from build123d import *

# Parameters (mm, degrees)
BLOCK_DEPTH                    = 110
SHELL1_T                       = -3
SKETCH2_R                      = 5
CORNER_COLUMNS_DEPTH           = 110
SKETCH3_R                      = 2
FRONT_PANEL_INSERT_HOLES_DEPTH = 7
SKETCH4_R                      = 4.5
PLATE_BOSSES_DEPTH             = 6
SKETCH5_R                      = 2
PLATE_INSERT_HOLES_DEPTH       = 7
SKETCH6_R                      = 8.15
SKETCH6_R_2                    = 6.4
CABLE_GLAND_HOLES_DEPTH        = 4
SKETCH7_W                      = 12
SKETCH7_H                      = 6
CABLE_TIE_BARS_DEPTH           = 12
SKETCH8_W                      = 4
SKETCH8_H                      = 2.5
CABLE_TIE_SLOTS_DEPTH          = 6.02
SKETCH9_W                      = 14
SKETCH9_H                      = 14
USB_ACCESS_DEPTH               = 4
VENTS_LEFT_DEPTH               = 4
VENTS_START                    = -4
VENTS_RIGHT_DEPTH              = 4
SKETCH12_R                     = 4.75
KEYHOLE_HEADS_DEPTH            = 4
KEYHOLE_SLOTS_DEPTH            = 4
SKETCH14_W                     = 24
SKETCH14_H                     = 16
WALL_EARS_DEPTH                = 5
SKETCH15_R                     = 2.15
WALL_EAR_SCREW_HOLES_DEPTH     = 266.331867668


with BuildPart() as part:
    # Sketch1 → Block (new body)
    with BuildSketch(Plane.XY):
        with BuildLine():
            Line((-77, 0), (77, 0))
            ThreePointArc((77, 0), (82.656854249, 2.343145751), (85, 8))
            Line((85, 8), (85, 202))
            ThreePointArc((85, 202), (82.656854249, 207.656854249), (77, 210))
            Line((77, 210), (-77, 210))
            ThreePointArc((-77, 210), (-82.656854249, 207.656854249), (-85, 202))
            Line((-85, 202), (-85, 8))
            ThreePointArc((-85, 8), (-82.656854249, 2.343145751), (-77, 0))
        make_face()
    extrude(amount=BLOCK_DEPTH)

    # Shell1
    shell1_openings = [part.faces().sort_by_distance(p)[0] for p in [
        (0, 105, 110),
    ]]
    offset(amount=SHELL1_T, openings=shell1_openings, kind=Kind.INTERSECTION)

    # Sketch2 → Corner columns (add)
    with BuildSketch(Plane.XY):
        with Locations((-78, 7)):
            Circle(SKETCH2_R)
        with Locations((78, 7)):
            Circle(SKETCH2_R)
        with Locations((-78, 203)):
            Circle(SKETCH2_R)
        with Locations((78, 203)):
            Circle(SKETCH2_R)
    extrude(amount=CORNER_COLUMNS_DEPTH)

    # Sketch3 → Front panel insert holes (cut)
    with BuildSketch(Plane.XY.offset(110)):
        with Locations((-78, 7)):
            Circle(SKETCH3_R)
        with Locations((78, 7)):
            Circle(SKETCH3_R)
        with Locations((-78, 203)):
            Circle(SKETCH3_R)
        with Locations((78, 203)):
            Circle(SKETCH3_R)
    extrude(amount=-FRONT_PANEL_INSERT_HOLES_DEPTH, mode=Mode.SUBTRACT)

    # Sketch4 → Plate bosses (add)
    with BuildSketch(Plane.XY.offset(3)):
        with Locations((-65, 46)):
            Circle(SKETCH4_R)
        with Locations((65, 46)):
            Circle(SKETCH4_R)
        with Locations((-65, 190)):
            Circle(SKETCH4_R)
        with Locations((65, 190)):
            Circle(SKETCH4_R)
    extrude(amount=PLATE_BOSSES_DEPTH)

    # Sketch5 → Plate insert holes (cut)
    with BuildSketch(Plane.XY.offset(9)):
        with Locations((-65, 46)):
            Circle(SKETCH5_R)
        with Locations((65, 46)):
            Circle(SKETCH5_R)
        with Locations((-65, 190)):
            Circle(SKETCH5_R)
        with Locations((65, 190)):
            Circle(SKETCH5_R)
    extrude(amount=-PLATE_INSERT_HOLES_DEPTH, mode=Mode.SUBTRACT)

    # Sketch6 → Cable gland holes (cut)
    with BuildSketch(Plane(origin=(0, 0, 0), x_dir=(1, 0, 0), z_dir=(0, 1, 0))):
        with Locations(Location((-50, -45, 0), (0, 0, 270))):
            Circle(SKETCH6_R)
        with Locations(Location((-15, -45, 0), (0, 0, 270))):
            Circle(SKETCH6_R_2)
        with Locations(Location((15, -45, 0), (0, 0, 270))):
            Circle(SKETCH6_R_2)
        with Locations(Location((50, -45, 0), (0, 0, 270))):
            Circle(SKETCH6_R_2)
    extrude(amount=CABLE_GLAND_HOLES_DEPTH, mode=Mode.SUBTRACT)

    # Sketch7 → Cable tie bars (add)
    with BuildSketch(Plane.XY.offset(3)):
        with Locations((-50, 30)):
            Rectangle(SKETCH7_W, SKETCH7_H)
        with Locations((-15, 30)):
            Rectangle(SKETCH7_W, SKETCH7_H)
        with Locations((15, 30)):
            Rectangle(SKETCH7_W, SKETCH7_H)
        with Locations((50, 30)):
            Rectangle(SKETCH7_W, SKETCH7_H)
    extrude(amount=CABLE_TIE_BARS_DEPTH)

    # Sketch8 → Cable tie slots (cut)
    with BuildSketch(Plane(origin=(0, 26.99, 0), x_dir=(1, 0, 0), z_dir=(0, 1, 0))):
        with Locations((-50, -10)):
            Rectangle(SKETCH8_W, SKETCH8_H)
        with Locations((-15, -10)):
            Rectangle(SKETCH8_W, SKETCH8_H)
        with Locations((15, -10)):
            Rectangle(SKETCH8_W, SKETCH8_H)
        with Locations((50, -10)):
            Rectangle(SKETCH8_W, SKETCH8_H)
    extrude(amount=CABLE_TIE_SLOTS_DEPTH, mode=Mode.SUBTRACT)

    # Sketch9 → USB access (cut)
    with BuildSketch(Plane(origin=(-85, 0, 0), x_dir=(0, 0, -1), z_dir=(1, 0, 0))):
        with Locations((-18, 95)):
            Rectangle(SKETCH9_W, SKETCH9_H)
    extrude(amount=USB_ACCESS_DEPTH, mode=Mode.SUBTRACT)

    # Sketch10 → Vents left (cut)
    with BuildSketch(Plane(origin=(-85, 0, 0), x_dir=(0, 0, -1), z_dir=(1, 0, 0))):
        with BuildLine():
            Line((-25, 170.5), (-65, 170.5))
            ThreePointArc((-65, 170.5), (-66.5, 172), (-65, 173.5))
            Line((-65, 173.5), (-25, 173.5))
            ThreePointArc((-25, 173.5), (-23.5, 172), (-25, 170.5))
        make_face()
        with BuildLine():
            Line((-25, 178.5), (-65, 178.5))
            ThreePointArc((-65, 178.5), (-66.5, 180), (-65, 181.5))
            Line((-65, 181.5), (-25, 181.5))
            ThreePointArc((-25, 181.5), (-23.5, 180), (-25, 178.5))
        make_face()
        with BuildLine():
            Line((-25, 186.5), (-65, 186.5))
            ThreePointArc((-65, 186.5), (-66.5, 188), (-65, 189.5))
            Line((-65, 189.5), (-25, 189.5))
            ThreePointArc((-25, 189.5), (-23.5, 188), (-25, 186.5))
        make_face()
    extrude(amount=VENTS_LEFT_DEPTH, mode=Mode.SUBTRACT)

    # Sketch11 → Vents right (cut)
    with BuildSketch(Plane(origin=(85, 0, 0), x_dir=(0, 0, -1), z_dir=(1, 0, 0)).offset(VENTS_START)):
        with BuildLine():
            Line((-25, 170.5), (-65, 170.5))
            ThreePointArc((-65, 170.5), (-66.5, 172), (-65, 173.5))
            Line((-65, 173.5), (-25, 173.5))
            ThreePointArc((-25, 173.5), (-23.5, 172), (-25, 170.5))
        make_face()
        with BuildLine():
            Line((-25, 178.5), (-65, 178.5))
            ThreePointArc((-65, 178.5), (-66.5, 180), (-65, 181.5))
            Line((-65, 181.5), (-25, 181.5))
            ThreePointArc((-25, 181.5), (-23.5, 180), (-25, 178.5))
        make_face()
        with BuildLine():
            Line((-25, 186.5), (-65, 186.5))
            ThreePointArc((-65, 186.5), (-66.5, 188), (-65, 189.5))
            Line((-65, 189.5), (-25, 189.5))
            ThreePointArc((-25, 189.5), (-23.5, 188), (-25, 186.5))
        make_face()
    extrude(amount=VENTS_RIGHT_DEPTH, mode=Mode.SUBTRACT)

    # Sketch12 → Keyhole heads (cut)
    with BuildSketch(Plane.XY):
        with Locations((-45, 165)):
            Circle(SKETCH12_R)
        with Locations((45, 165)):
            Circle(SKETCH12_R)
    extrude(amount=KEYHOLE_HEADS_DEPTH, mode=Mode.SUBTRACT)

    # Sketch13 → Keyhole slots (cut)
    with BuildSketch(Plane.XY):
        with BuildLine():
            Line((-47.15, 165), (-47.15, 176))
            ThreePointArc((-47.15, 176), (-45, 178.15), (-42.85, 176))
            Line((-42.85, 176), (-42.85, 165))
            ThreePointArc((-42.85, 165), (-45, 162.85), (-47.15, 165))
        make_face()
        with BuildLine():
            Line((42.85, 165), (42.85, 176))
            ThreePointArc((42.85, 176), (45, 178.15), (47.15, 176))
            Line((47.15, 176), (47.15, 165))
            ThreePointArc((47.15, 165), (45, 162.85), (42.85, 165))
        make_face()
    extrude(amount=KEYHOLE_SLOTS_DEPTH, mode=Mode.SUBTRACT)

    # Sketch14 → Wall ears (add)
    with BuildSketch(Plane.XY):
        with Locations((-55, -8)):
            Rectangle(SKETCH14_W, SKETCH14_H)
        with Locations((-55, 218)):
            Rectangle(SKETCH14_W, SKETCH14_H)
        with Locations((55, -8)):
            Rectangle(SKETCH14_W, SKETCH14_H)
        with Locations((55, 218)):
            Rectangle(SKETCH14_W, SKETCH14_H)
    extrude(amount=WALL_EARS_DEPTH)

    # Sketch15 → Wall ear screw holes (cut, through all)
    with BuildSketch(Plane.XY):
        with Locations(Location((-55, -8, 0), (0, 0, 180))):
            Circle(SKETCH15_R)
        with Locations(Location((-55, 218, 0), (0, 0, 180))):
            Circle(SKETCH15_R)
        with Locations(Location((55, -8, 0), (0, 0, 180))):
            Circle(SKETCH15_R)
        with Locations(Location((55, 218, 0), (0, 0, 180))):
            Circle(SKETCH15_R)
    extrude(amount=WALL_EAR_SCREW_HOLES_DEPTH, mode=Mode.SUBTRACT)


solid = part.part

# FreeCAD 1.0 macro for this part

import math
import FreeCAD as App
import Part
import Sketcher

V = App.Vector


def faces_at(feature, points):
    """Names of the faces that lie closest to the given points."""
    faces = feature.Shape.Faces
    near = lambda p: min(range(len(faces)), key=lambda i: faces[i].distToShape(Part.Vertex(*p))[0])
    return sorted({f"Face{near(p) + 1}" for p in points})

doc = App.newDocument("Part")
body = doc.addObject("PartDesign::Body", "Body")

sketch1 = body.newObject("Sketcher::SketchObject", "Sketch")
sketch1.AttachmentSupport = (doc.getObject("XY_Plane"), [""])
sketch1.MapMode = "FlatFace"
sketch1.addGeometry([
    Part.LineSegment(V(-77, 0, 0), V(77, 0, 0)),
    Part.ArcOfCircle(Part.Circle(V(77, 8, 0), V(0, 0, 1), 8), math.radians(-90), math.radians(0)),
    Part.LineSegment(V(85, 8, 0), V(85, 202, 0)),
    Part.ArcOfCircle(Part.Circle(V(77, 202, 0), V(0, 0, 1), 8), math.radians(0), math.radians(90)),
    Part.LineSegment(V(77, 210, 0), V(-77, 210, 0)),
    Part.ArcOfCircle(Part.Circle(V(-77, 202, 0), V(0, 0, 1), 8), math.radians(90), math.radians(180)),
    Part.LineSegment(V(-85, 202, 0), V(-85, 8, 0)),
    Part.ArcOfCircle(Part.Circle(V(-77, 8, 0), V(0, 0, 1), 8), math.radians(-180), math.radians(-90)),
], False)
sketch1.addConstraint([
    Sketcher.Constraint("Tangent", 0, 2, 1, 1),
    Sketcher.Constraint("Tangent", 1, 2, 2, 1),
    Sketcher.Constraint("Tangent", 2, 2, 3, 1),
    Sketcher.Constraint("Tangent", 3, 2, 4, 1),
    Sketcher.Constraint("Tangent", 4, 2, 5, 1),
    Sketcher.Constraint("Tangent", 5, 2, 6, 1),
    Sketcher.Constraint("Tangent", 6, 2, 7, 1),
    Sketcher.Constraint("Tangent", 7, 2, 0, 1),
    Sketcher.Constraint("Horizontal", 0),
    Sketcher.Constraint("Vertical", 2),
    Sketcher.Constraint("Horizontal", 4),
    Sketcher.Constraint("Vertical", 6),
    Sketcher.Constraint("Equal", 1, 3),
    Sketcher.Constraint("Equal", 3, 5),
    Sketcher.Constraint("Equal", 5, 7),
    Sketcher.Constraint("Symmetric", 0, 2, 7, 2, -1, 1),
    Sketcher.Constraint("Radius", 1, 8.0),
    Sketcher.Constraint("DistanceX", 0, 1, 0, 2, 154.0),
    Sketcher.Constraint("DistanceY", 2, 1, 2, 2, 194.0),
])
pad1 = body.newObject("PartDesign::Pad", "Pad")
pad1.Profile = sketch1
pad1.Length = 110
doc.recompute()

thickness = body.newObject("PartDesign::Thickness", "Thickness")
thickness.Base = (pad1, faces_at(pad1, [(0, 105, 110)]))
thickness.Value = 3
thickness.Reversed = True
thickness.Join = "Intersection"

sketch2 = body.newObject("Sketcher::SketchObject", "Sketch001")
sketch2.AttachmentSupport = (doc.getObject("XY_Plane"), [""])
sketch2.MapMode = "FlatFace"
sketch2.addGeometry([
    Part.Circle(V(-78, 7, 0), V(0, 0, 1), 5),
    Part.Circle(V(78, 7, 0), V(0, 0, 1), 5),
    Part.Circle(V(-78, 203, 0), V(0, 0, 1), 5),
    Part.Circle(V(78, 203, 0), V(0, 0, 1), 5),
], False)
sketch2.addConstraint([
    Sketcher.Constraint("Equal", 0, 1),
    Sketcher.Constraint("Equal", 1, 2),
    Sketcher.Constraint("Equal", 2, 3),
    Sketcher.Constraint("Symmetric", 0, 3, 1, 3, -2),
    Sketcher.Constraint("Symmetric", 2, 3, 3, 3, -2),
    Sketcher.Constraint("Vertical", 0, 3, 2, 3),
    Sketcher.Constraint("Diameter", 0, 10.0),
    Sketcher.Constraint("DistanceX", 0, 3, -1, 1, 78.0),
    Sketcher.Constraint("DistanceY", -1, 1, 0, 3, 7.0),
    Sketcher.Constraint("DistanceY", -1, 1, 2, 3, 203.0),
])
pad2 = body.newObject("PartDesign::Pad", "Pad001")
pad2.Profile = sketch2
pad2.Length = 110

sketch3 = body.newObject("Sketcher::SketchObject", "Sketch002")
sketch3.AttachmentSupport = (doc.getObject("XY_Plane"), [""])
sketch3.MapMode = "FlatFace"
sketch3.AttachmentOffset = App.Placement(V(0, 0, 110), App.Rotation())
sketch3.addGeometry([
    Part.Circle(V(-78, 7, 0), V(0, 0, 1), 2),
    Part.Circle(V(78, 7, 0), V(0, 0, 1), 2),
    Part.Circle(V(-78, 203, 0), V(0, 0, 1), 2),
    Part.Circle(V(78, 203, 0), V(0, 0, 1), 2),
], False)
sketch3.addConstraint([
    Sketcher.Constraint("Equal", 0, 1),
    Sketcher.Constraint("Equal", 1, 2),
    Sketcher.Constraint("Equal", 2, 3),
    Sketcher.Constraint("Symmetric", 0, 3, 1, 3, -2),
    Sketcher.Constraint("Symmetric", 2, 3, 3, 3, -2),
    Sketcher.Constraint("Vertical", 0, 3, 2, 3),
    Sketcher.Constraint("Diameter", 0, 4.0),
    Sketcher.Constraint("DistanceX", 0, 3, -1, 1, 78.0),
    Sketcher.Constraint("DistanceY", -1, 1, 0, 3, 7.0),
    Sketcher.Constraint("DistanceY", -1, 1, 2, 3, 203.0),
])
pocket1 = body.newObject("PartDesign::Pocket", "Pocket")
pocket1.Profile = sketch3
pocket1.Length = 7

sketch4 = body.newObject("Sketcher::SketchObject", "Sketch003")
sketch4.AttachmentSupport = (doc.getObject("XY_Plane"), [""])
sketch4.MapMode = "FlatFace"
sketch4.AttachmentOffset = App.Placement(V(0, 0, 3), App.Rotation())
sketch4.addGeometry([
    Part.Circle(V(-65, 46, 0), V(0, 0, 1), 4.5),
    Part.Circle(V(65, 46, 0), V(0, 0, 1), 4.5),
    Part.Circle(V(-65, 190, 0), V(0, 0, 1), 4.5),
    Part.Circle(V(65, 190, 0), V(0, 0, 1), 4.5),
], False)
sketch4.addConstraint([
    Sketcher.Constraint("Equal", 0, 1),
    Sketcher.Constraint("Equal", 1, 2),
    Sketcher.Constraint("Equal", 2, 3),
    Sketcher.Constraint("Symmetric", 0, 3, 1, 3, -2),
    Sketcher.Constraint("Symmetric", 2, 3, 3, 3, -2),
    Sketcher.Constraint("Vertical", 0, 3, 2, 3),
    Sketcher.Constraint("Diameter", 0, 9.0),
    Sketcher.Constraint("DistanceX", 0, 3, -1, 1, 65.0),
    Sketcher.Constraint("DistanceY", -1, 1, 0, 3, 46.0),
    Sketcher.Constraint("DistanceY", -1, 1, 2, 3, 190.0),
])
pad3 = body.newObject("PartDesign::Pad", "Pad002")
pad3.Profile = sketch4
pad3.Length = 6

sketch5 = body.newObject("Sketcher::SketchObject", "Sketch004")
sketch5.AttachmentSupport = (doc.getObject("XY_Plane"), [""])
sketch5.MapMode = "FlatFace"
sketch5.AttachmentOffset = App.Placement(V(0, 0, 9), App.Rotation())
sketch5.addGeometry([
    Part.Circle(V(-65, 46, 0), V(0, 0, 1), 2),
    Part.Circle(V(65, 46, 0), V(0, 0, 1), 2),
    Part.Circle(V(-65, 190, 0), V(0, 0, 1), 2),
    Part.Circle(V(65, 190, 0), V(0, 0, 1), 2),
], False)
sketch5.addConstraint([
    Sketcher.Constraint("Equal", 0, 1),
    Sketcher.Constraint("Equal", 1, 2),
    Sketcher.Constraint("Equal", 2, 3),
    Sketcher.Constraint("Symmetric", 0, 3, 1, 3, -2),
    Sketcher.Constraint("Symmetric", 2, 3, 3, 3, -2),
    Sketcher.Constraint("Vertical", 0, 3, 2, 3),
    Sketcher.Constraint("Diameter", 0, 4.0),
    Sketcher.Constraint("DistanceX", 0, 3, -1, 1, 65.0),
    Sketcher.Constraint("DistanceY", -1, 1, 0, 3, 46.0),
    Sketcher.Constraint("DistanceY", -1, 1, 2, 3, 190.0),
])
pocket2 = body.newObject("PartDesign::Pocket", "Pocket001")
pocket2.Profile = sketch5
pocket2.Length = 7

sketch6 = body.newObject("Sketcher::SketchObject", "Sketch005")
sketch6.AttachmentSupport = (doc.getObject("XZ_Plane"), [""])
sketch6.MapMode = "FlatFace"
sketch6.addGeometry([
    Part.Circle(V(-50, 45, 0), V(0, 0, 1), 8.15),
    Part.Circle(V(-15, 45, 0), V(0, 0, 1), 6.4),
    Part.Circle(V(15, 45, 0), V(0, 0, 1), 6.4),
    Part.Circle(V(50, 45, 0), V(0, 0, 1), 6.4),
], False)
sketch6.addConstraint([
    Sketcher.Constraint("Equal", 1, 2),
    Sketcher.Constraint("Equal", 2, 3),
    Sketcher.Constraint("Symmetric", 1, 3, 2, 3, -2),
    Sketcher.Constraint("Symmetric", 0, 3, 3, 3, -2),
    Sketcher.Constraint("Horizontal", 0, 3, 1, 3),
    Sketcher.Constraint("Diameter", 0, 16.3),
    Sketcher.Constraint("Diameter", 1, 12.8),
    Sketcher.Constraint("DistanceX", 0, 3, -1, 1, 50.0),
    Sketcher.Constraint("DistanceY", -1, 1, 0, 3, 45.0),
    Sketcher.Constraint("DistanceX", 1, 3, -1, 1, 15.0),
])
pocket3 = body.newObject("PartDesign::Pocket", "Pocket002")
pocket3.Profile = sketch6
pocket3.Length = 4

sketch7 = body.newObject("Sketcher::SketchObject", "Sketch006")
sketch7.AttachmentSupport = (doc.getObject("XY_Plane"), [""])
sketch7.MapMode = "FlatFace"
sketch7.AttachmentOffset = App.Placement(V(0, 0, 3), App.Rotation())
sketch7.addGeometry([
    Part.LineSegment(V(-56, 33, 0), V(-56, 27, 0)),
    Part.LineSegment(V(-56, 27, 0), V(-44, 27, 0)),
    Part.LineSegment(V(-44, 27, 0), V(-44, 33, 0)),
    Part.LineSegment(V(-44, 33, 0), V(-56, 33, 0)),
    Part.LineSegment(V(-21, 33, 0), V(-21, 27, 0)),
    Part.LineSegment(V(-21, 27, 0), V(-9, 27, 0)),
    Part.LineSegment(V(-9, 27, 0), V(-9, 33, 0)),
    Part.LineSegment(V(-9, 33, 0), V(-21, 33, 0)),
    Part.LineSegment(V(9, 33, 0), V(9, 27, 0)),
    Part.LineSegment(V(9, 27, 0), V(21, 27, 0)),
    Part.LineSegment(V(21, 27, 0), V(21, 33, 0)),
    Part.LineSegment(V(21, 33, 0), V(9, 33, 0)),
    Part.LineSegment(V(44, 33, 0), V(44, 27, 0)),
    Part.LineSegment(V(44, 27, 0), V(56, 27, 0)),
    Part.LineSegment(V(56, 27, 0), V(56, 33, 0)),
    Part.LineSegment(V(56, 33, 0), V(44, 33, 0)),
], False)
sketch7.addConstraint([
    Sketcher.Constraint("Coincident", 0, 2, 1, 1),
    Sketcher.Constraint("Coincident", 1, 2, 2, 1),
    Sketcher.Constraint("Coincident", 2, 2, 3, 1),
    Sketcher.Constraint("Coincident", 3, 2, 0, 1),
    Sketcher.Constraint("Coincident", 4, 2, 5, 1),
    Sketcher.Constraint("Coincident", 5, 2, 6, 1),
    Sketcher.Constraint("Coincident", 6, 2, 7, 1),
    Sketcher.Constraint("Coincident", 7, 2, 4, 1),
    Sketcher.Constraint("Coincident", 8, 2, 9, 1),
    Sketcher.Constraint("Coincident", 9, 2, 10, 1),
    Sketcher.Constraint("Coincident", 10, 2, 11, 1),
    Sketcher.Constraint("Coincident", 11, 2, 8, 1),
    Sketcher.Constraint("Coincident", 12, 2, 13, 1),
    Sketcher.Constraint("Coincident", 13, 2, 14, 1),
    Sketcher.Constraint("Coincident", 14, 2, 15, 1),
    Sketcher.Constraint("Coincident", 15, 2, 12, 1),
    Sketcher.Constraint("Vertical", 0),
    Sketcher.Constraint("Horizontal", 1),
    Sketcher.Constraint("Vertical", 2),
    Sketcher.Constraint("Horizontal", 3),
    Sketcher.Constraint("Vertical", 4),
    Sketcher.Constraint("Horizontal", 5),
    Sketcher.Constraint("Vertical", 6),
    Sketcher.Constraint("Horizontal", 7),
    Sketcher.Constraint("Vertical", 8),
    Sketcher.Constraint("Horizontal", 9),
    Sketcher.Constraint("Vertical", 10),
    Sketcher.Constraint("Horizontal", 11),
    Sketcher.Constraint("Vertical", 12),
    Sketcher.Constraint("Horizontal", 13),
    Sketcher.Constraint("Vertical", 14),
    Sketcher.Constraint("Horizontal", 15),
    Sketcher.Constraint("Symmetric", 5, 2, 8, 2, -2),
    Sketcher.Constraint("Symmetric", 7, 2, 10, 2, -2),
    Sketcher.Constraint("Symmetric", 1, 2, 12, 2, -2),
    Sketcher.Constraint("Symmetric", 3, 2, 14, 2, -2),
    Sketcher.Constraint("Horizontal", 1, 2, 4, 2),
    Sketcher.Constraint("Horizontal", 3, 2, 6, 2),
    Sketcher.Constraint("Equal", 3, 5),
    Sketcher.Constraint("DistanceX", 1, 1, 1, 2, 12.0),
    Sketcher.Constraint("DistanceY", 0, 2, 0, 1, 6.0),
    Sketcher.Constraint("DistanceX", 0, 2, -1, 1, 56.0),
    Sketcher.Constraint("DistanceY", -1, 1, 0, 2, 27.0),
    Sketcher.Constraint("DistanceX", 4, 2, -1, 1, 21.0),
])
pad4 = body.newObject("PartDesign::Pad", "Pad003")
pad4.Profile = sketch7
pad4.Length = 12

sketch8 = body.newObject("Sketcher::SketchObject", "Sketch007")
sketch8.AttachmentSupport = (doc.getObject("XZ_Plane"), [""])
sketch8.MapMode = "FlatFace"
sketch8.AttachmentOffset = App.Placement(V(0, 0, -26.99), App.Rotation())
sketch8.addGeometry([
    Part.LineSegment(V(-52, 8.75, 0), V(-52, 11.25, 0)),
    Part.LineSegment(V(-52, 11.25, 0), V(-48, 11.25, 0)),
    Part.LineSegment(V(-48, 11.25, 0), V(-48, 8.75, 0)),
    Part.LineSegment(V(-48, 8.75, 0), V(-52, 8.75, 0)),
    Part.LineSegment(V(-17, 8.75, 0), V(-17, 11.25, 0)),
    Part.LineSegment(V(-17, 11.25, 0), V(-13, 11.25, 0)),
    Part.LineSegment(V(-13, 11.25, 0), V(-13, 8.75, 0)),
    Part.LineSegment(V(-13, 8.75, 0), V(-17, 8.75, 0)),
    Part.LineSegment(V(13, 8.75, 0), V(13, 11.25, 0)),
    Part.LineSegment(V(13, 11.25, 0), V(17, 11.25, 0)),
    Part.LineSegment(V(17, 11.25, 0), V(17, 8.75, 0)),
    Part.LineSegment(V(17, 8.75, 0), V(13, 8.75, 0)),
    Part.LineSegment(V(48, 8.75, 0), V(48, 11.25, 0)),
    Part.LineSegment(V(48, 11.25, 0), V(52, 11.25, 0)),
    Part.LineSegment(V(52, 11.25, 0), V(52, 8.75, 0)),
    Part.LineSegment(V(52, 8.75, 0), V(48, 8.75, 0)),
], False)
sketch8.addConstraint([
    Sketcher.Constraint("Coincident", 0, 2, 1, 1),
    Sketcher.Constraint("Coincident", 1, 2, 2, 1),
    Sketcher.Constraint("Coincident", 2, 2, 3, 1),
    Sketcher.Constraint("Coincident", 3, 2, 0, 1),
    Sketcher.Constraint("Coincident", 4, 2, 5, 1),
    Sketcher.Constraint("Coincident", 5, 2, 6, 1),
    Sketcher.Constraint("Coincident", 6, 2, 7, 1),
    Sketcher.Constraint("Coincident", 7, 2, 4, 1),
    Sketcher.Constraint("Coincident", 8, 2, 9, 1),
    Sketcher.Constraint("Coincident", 9, 2, 10, 1),
    Sketcher.Constraint("Coincident", 10, 2, 11, 1),
    Sketcher.Constraint("Coincident", 11, 2, 8, 1),
    Sketcher.Constraint("Coincident", 12, 2, 13, 1),
    Sketcher.Constraint("Coincident", 13, 2, 14, 1),
    Sketcher.Constraint("Coincident", 14, 2, 15, 1),
    Sketcher.Constraint("Coincident", 15, 2, 12, 1),
    Sketcher.Constraint("Vertical", 0),
    Sketcher.Constraint("Horizontal", 1),
    Sketcher.Constraint("Vertical", 2),
    Sketcher.Constraint("Horizontal", 3),
    Sketcher.Constraint("Vertical", 4),
    Sketcher.Constraint("Horizontal", 5),
    Sketcher.Constraint("Vertical", 6),
    Sketcher.Constraint("Horizontal", 7),
    Sketcher.Constraint("Vertical", 8),
    Sketcher.Constraint("Horizontal", 9),
    Sketcher.Constraint("Vertical", 10),
    Sketcher.Constraint("Horizontal", 11),
    Sketcher.Constraint("Vertical", 12),
    Sketcher.Constraint("Horizontal", 13),
    Sketcher.Constraint("Vertical", 14),
    Sketcher.Constraint("Horizontal", 15),
    Sketcher.Constraint("Symmetric", 5, 2, 8, 2, -2),
    Sketcher.Constraint("Symmetric", 7, 2, 10, 2, -2),
    Sketcher.Constraint("Symmetric", 1, 2, 12, 2, -2),
    Sketcher.Constraint("Symmetric", 3, 2, 14, 2, -2),
    Sketcher.Constraint("Horizontal", 1, 2, 4, 2),
    Sketcher.Constraint("Horizontal", 3, 2, 6, 2),
    Sketcher.Constraint("Equal", 3, 5),
    Sketcher.Constraint("DistanceX", 1, 1, 1, 2, 4.0),
    Sketcher.Constraint("DistanceY", 0, 1, 0, 2, 2.5),
    Sketcher.Constraint("DistanceX", 0, 2, -1, 1, 52.0),
    Sketcher.Constraint("DistanceX", 4, 2, -1, 1, 17.0),
    Sketcher.Constraint("DistanceY", -1, 1, 0, 2, 11.25),
])
pocket4 = body.newObject("PartDesign::Pocket", "Pocket003")
pocket4.Profile = sketch8
pocket4.Length = 6.02

sketch9 = body.newObject("Sketcher::SketchObject", "Sketch008")
sketch9.AttachmentSupport = (doc.getObject("YZ_Plane"), [""])
sketch9.MapMode = "FlatFace"
sketch9.AttachmentOffset = App.Placement(V(0, 0, -85), App.Rotation())
sketch9.addGeometry([
    Part.LineSegment(V(102, 25, 0), V(88, 25, 0)),
    Part.LineSegment(V(88, 25, 0), V(88, 11, 0)),
    Part.LineSegment(V(88, 11, 0), V(102, 11, 0)),
    Part.LineSegment(V(102, 11, 0), V(102, 25, 0)),
], False)
sketch9.addConstraint([
    Sketcher.Constraint("Coincident", 0, 2, 1, 1),
    Sketcher.Constraint("Coincident", 1, 2, 2, 1),
    Sketcher.Constraint("Coincident", 2, 2, 3, 1),
    Sketcher.Constraint("Coincident", 3, 2, 0, 1),
    Sketcher.Constraint("Horizontal", 0),
    Sketcher.Constraint("Vertical", 1),
    Sketcher.Constraint("Horizontal", 2),
    Sketcher.Constraint("Vertical", 3),
    Sketcher.Constraint("Equal", 2, 1),
    Sketcher.Constraint("DistanceX", 0, 2, 0, 1, 14.0),
    Sketcher.Constraint("DistanceX", -1, 1, 0, 2, 88.0),
    Sketcher.Constraint("DistanceY", -1, 1, 0, 2, 25.0),
])
pocket5 = body.newObject("PartDesign::Pocket", "Pocket004")
pocket5.Profile = sketch9
pocket5.Length = 4
pocket5.Reversed = True

sketch10 = body.newObject("Sketcher::SketchObject", "Sketch009")
sketch10.AttachmentSupport = (doc.getObject("YZ_Plane"), [""])
sketch10.MapMode = "FlatFace"
sketch10.AttachmentOffset = App.Placement(V(0, 0, -85), App.Rotation())
sketch10.addGeometry([
    Part.LineSegment(V(170.5, 65, 0), V(170.5, 25, 0)),
    Part.ArcOfCircle(Part.Circle(V(172, 25, 0), V(0, 0, 1), 1.5), math.radians(180), math.radians(360)),
    Part.LineSegment(V(173.5, 25, 0), V(173.5, 65, 0)),
    Part.ArcOfCircle(Part.Circle(V(172, 65, 0), V(0, 0, 1), 1.5), math.radians(0), math.radians(180)),
    Part.LineSegment(V(178.5, 65, 0), V(178.5, 25, 0)),
    Part.ArcOfCircle(Part.Circle(V(180, 25, 0), V(0, 0, 1), 1.5), math.radians(180), math.radians(360)),
    Part.LineSegment(V(181.5, 25, 0), V(181.5, 65, 0)),
    Part.ArcOfCircle(Part.Circle(V(180, 65, 0), V(0, 0, 1), 1.5), math.radians(0), math.radians(180)),
    Part.LineSegment(V(186.5, 65, 0), V(186.5, 25, 0)),
    Part.ArcOfCircle(Part.Circle(V(188, 25, 0), V(0, 0, 1), 1.5), math.radians(180), math.radians(360)),
    Part.LineSegment(V(189.5, 25, 0), V(189.5, 65, 0)),
    Part.ArcOfCircle(Part.Circle(V(188, 65, 0), V(0, 0, 1), 1.5), math.radians(0), math.radians(180)),
], False)
sketch10.addConstraint([
    Sketcher.Constraint("Tangent", 0, 2, 1, 1),
    Sketcher.Constraint("Tangent", 1, 2, 2, 1),
    Sketcher.Constraint("Tangent", 2, 2, 3, 1),
    Sketcher.Constraint("Tangent", 3, 2, 0, 1),
    Sketcher.Constraint("Tangent", 4, 2, 5, 1),
    Sketcher.Constraint("Tangent", 5, 2, 6, 1),
    Sketcher.Constraint("Tangent", 6, 2, 7, 1),
    Sketcher.Constraint("Tangent", 7, 2, 4, 1),
    Sketcher.Constraint("Tangent", 8, 2, 9, 1),
    Sketcher.Constraint("Tangent", 9, 2, 10, 1),
    Sketcher.Constraint("Tangent", 10, 2, 11, 1),
    Sketcher.Constraint("Tangent", 11, 2, 8, 1),
    Sketcher.Constraint("Vertical", 0),
    Sketcher.Constraint("Vertical", 2),
    Sketcher.Constraint("Vertical", 4),
    Sketcher.Constraint("Vertical", 6),
    Sketcher.Constraint("Vertical", 8),
    Sketcher.Constraint("Vertical", 10),
    Sketcher.Constraint("Equal", 3, 5),
    Sketcher.Constraint("Equal", 7, 9),
    Sketcher.Constraint("Horizontal", 1, 3, 5, 3),
    Sketcher.Constraint("Horizontal", 3, 3, 7, 3),
    Sketcher.Constraint("Horizontal", 5, 3, 9, 3),
    Sketcher.Constraint("Horizontal", 7, 3, 11, 3),
    Sketcher.Constraint("Radius", 1, 1.5),
    Sketcher.Constraint("DistanceY", 0, 2, 0, 1, 40.0),
    Sketcher.Constraint("DistanceX", -1, 1, 1, 3, 172.0),
    Sketcher.Constraint("DistanceY", -1, 1, 1, 3, 25.0),
    Sketcher.Constraint("DistanceX", -1, 1, 5, 3, 180.0),
    Sketcher.Constraint("DistanceX", -1, 1, 9, 3, 188.0),
])
pocket6 = body.newObject("PartDesign::Pocket", "Pocket005")
pocket6.Profile = sketch10
pocket6.Length = 4
pocket6.Reversed = True

sketch11 = body.newObject("Sketcher::SketchObject", "Sketch010")
sketch11.AttachmentSupport = (doc.getObject("YZ_Plane"), [""])
sketch11.MapMode = "FlatFace"
sketch11.AttachmentOffset = App.Placement(V(0, 0, 81), App.Rotation())
sketch11.addGeometry([
    Part.LineSegment(V(170.5, 65, 0), V(170.5, 25, 0)),
    Part.ArcOfCircle(Part.Circle(V(172, 25, 0), V(0, 0, 1), 1.5), math.radians(180), math.radians(360)),
    Part.LineSegment(V(173.5, 25, 0), V(173.5, 65, 0)),
    Part.ArcOfCircle(Part.Circle(V(172, 65, 0), V(0, 0, 1), 1.5), math.radians(0), math.radians(180)),
    Part.LineSegment(V(178.5, 65, 0), V(178.5, 25, 0)),
    Part.ArcOfCircle(Part.Circle(V(180, 25, 0), V(0, 0, 1), 1.5), math.radians(180), math.radians(360)),
    Part.LineSegment(V(181.5, 25, 0), V(181.5, 65, 0)),
    Part.ArcOfCircle(Part.Circle(V(180, 65, 0), V(0, 0, 1), 1.5), math.radians(0), math.radians(180)),
    Part.LineSegment(V(186.5, 65, 0), V(186.5, 25, 0)),
    Part.ArcOfCircle(Part.Circle(V(188, 25, 0), V(0, 0, 1), 1.5), math.radians(180), math.radians(360)),
    Part.LineSegment(V(189.5, 25, 0), V(189.5, 65, 0)),
    Part.ArcOfCircle(Part.Circle(V(188, 65, 0), V(0, 0, 1), 1.5), math.radians(0), math.radians(180)),
], False)
sketch11.addConstraint([
    Sketcher.Constraint("Tangent", 0, 2, 1, 1),
    Sketcher.Constraint("Tangent", 1, 2, 2, 1),
    Sketcher.Constraint("Tangent", 2, 2, 3, 1),
    Sketcher.Constraint("Tangent", 3, 2, 0, 1),
    Sketcher.Constraint("Tangent", 4, 2, 5, 1),
    Sketcher.Constraint("Tangent", 5, 2, 6, 1),
    Sketcher.Constraint("Tangent", 6, 2, 7, 1),
    Sketcher.Constraint("Tangent", 7, 2, 4, 1),
    Sketcher.Constraint("Tangent", 8, 2, 9, 1),
    Sketcher.Constraint("Tangent", 9, 2, 10, 1),
    Sketcher.Constraint("Tangent", 10, 2, 11, 1),
    Sketcher.Constraint("Tangent", 11, 2, 8, 1),
    Sketcher.Constraint("Vertical", 0),
    Sketcher.Constraint("Vertical", 2),
    Sketcher.Constraint("Vertical", 4),
    Sketcher.Constraint("Vertical", 6),
    Sketcher.Constraint("Vertical", 8),
    Sketcher.Constraint("Vertical", 10),
    Sketcher.Constraint("Equal", 3, 5),
    Sketcher.Constraint("Equal", 7, 9),
    Sketcher.Constraint("Horizontal", 1, 3, 5, 3),
    Sketcher.Constraint("Horizontal", 3, 3, 7, 3),
    Sketcher.Constraint("Horizontal", 5, 3, 9, 3),
    Sketcher.Constraint("Horizontal", 7, 3, 11, 3),
    Sketcher.Constraint("Radius", 1, 1.5),
    Sketcher.Constraint("DistanceY", 0, 2, 0, 1, 40.0),
    Sketcher.Constraint("DistanceX", -1, 1, 1, 3, 172.0),
    Sketcher.Constraint("DistanceY", -1, 1, 1, 3, 25.0),
    Sketcher.Constraint("DistanceX", -1, 1, 5, 3, 180.0),
    Sketcher.Constraint("DistanceX", -1, 1, 9, 3, 188.0),
])
pocket7 = body.newObject("PartDesign::Pocket", "Pocket006")
pocket7.Profile = sketch11
pocket7.Length = 4
pocket7.Reversed = True

sketch12 = body.newObject("Sketcher::SketchObject", "Sketch011")
sketch12.AttachmentSupport = (doc.getObject("XY_Plane"), [""])
sketch12.MapMode = "FlatFace"
sketch12.addGeometry([
    Part.Circle(V(-45, 165, 0), V(0, 0, 1), 4.75),
    Part.Circle(V(45, 165, 0), V(0, 0, 1), 4.75),
], False)
sketch12.addConstraint([
    Sketcher.Constraint("Equal", 0, 1),
    Sketcher.Constraint("Symmetric", 0, 3, 1, 3, -2),
    Sketcher.Constraint("Diameter", 0, 9.5),
    Sketcher.Constraint("DistanceX", 0, 3, -1, 1, 45.0),
    Sketcher.Constraint("DistanceY", -1, 1, 0, 3, 165.0),
])
pocket8 = body.newObject("PartDesign::Pocket", "Pocket007")
pocket8.Profile = sketch12
pocket8.Length = 4
pocket8.Reversed = True

sketch13 = body.newObject("Sketcher::SketchObject", "Sketch012")
sketch13.AttachmentSupport = (doc.getObject("XY_Plane"), [""])
sketch13.MapMode = "FlatFace"
sketch13.addGeometry([
    Part.LineSegment(V(-47.15, 176, 0), V(-47.15, 165, 0)),
    Part.ArcOfCircle(Part.Circle(V(-45, 165, 0), V(0, 0, 1), 2.15), math.radians(180), math.radians(360)),
    Part.LineSegment(V(-42.85, 165, 0), V(-42.85, 176, 0)),
    Part.ArcOfCircle(Part.Circle(V(-45, 176, 0), V(0, 0, 1), 2.15), math.radians(0), math.radians(180)),
    Part.LineSegment(V(42.85, 176, 0), V(42.85, 165, 0)),
    Part.ArcOfCircle(Part.Circle(V(45, 165, 0), V(0, 0, 1), 2.15), math.radians(180), math.radians(360)),
    Part.LineSegment(V(47.15, 165, 0), V(47.15, 176, 0)),
    Part.ArcOfCircle(Part.Circle(V(45, 176, 0), V(0, 0, 1), 2.15), math.radians(0), math.radians(180)),
], False)
sketch13.addConstraint([
    Sketcher.Constraint("Tangent", 0, 2, 1, 1),
    Sketcher.Constraint("Tangent", 1, 2, 2, 1),
    Sketcher.Constraint("Tangent", 2, 2, 3, 1),
    Sketcher.Constraint("Tangent", 3, 2, 0, 1),
    Sketcher.Constraint("Tangent", 4, 2, 5, 1),
    Sketcher.Constraint("Tangent", 5, 2, 6, 1),
    Sketcher.Constraint("Tangent", 6, 2, 7, 1),
    Sketcher.Constraint("Tangent", 7, 2, 4, 1),
    Sketcher.Constraint("Vertical", 0),
    Sketcher.Constraint("Vertical", 2),
    Sketcher.Constraint("Vertical", 4),
    Sketcher.Constraint("Vertical", 6),
    Sketcher.Constraint("Equal", 3, 5),
    Sketcher.Constraint("Symmetric", 1, 3, 5, 3, -2),
    Sketcher.Constraint("Horizontal", 3, 3, 7, 3),
    Sketcher.Constraint("DistanceY", 0, 2, 0, 1, 11.0),
    Sketcher.Constraint("Radius", 1, 2.15),
    Sketcher.Constraint("DistanceX", 1, 3, -1, 1, 45.0),
    Sketcher.Constraint("DistanceY", -1, 1, 1, 3, 165.0),
])
pocket9 = body.newObject("PartDesign::Pocket", "Pocket008")
pocket9.Profile = sketch13
pocket9.Length = 4
pocket9.Reversed = True

sketch14 = body.newObject("Sketcher::SketchObject", "Sketch013")
sketch14.AttachmentSupport = (doc.getObject("XY_Plane"), [""])
sketch14.MapMode = "FlatFace"
sketch14.addGeometry([
    Part.LineSegment(V(-67, 0, 0), V(-67, -16, 0)),
    Part.LineSegment(V(-67, -16, 0), V(-43, -16, 0)),
    Part.LineSegment(V(-43, -16, 0), V(-43, 0, 0)),
    Part.LineSegment(V(-43, 0, 0), V(-67, 0, 0)),
    Part.LineSegment(V(-67, 226, 0), V(-67, 210, 0)),
    Part.LineSegment(V(-67, 210, 0), V(-43, 210, 0)),
    Part.LineSegment(V(-43, 210, 0), V(-43, 226, 0)),
    Part.LineSegment(V(-43, 226, 0), V(-67, 226, 0)),
    Part.LineSegment(V(43, 0, 0), V(43, -16, 0)),
    Part.LineSegment(V(43, -16, 0), V(67, -16, 0)),
    Part.LineSegment(V(67, -16, 0), V(67, 0, 0)),
    Part.LineSegment(V(67, 0, 0), V(43, 0, 0)),
    Part.LineSegment(V(43, 226, 0), V(43, 210, 0)),
    Part.LineSegment(V(43, 210, 0), V(67, 210, 0)),
    Part.LineSegment(V(67, 210, 0), V(67, 226, 0)),
    Part.LineSegment(V(67, 226, 0), V(43, 226, 0)),
], False)
sketch14.addConstraint([
    Sketcher.Constraint("Coincident", 0, 2, 1, 1),
    Sketcher.Constraint("Coincident", 1, 2, 2, 1),
    Sketcher.Constraint("Coincident", 2, 2, 3, 1),
    Sketcher.Constraint("Coincident", 3, 2, 0, 1),
    Sketcher.Constraint("Coincident", 4, 2, 5, 1),
    Sketcher.Constraint("Coincident", 5, 2, 6, 1),
    Sketcher.Constraint("Coincident", 6, 2, 7, 1),
    Sketcher.Constraint("Coincident", 7, 2, 4, 1),
    Sketcher.Constraint("Coincident", 8, 2, 9, 1),
    Sketcher.Constraint("Coincident", 9, 2, 10, 1),
    Sketcher.Constraint("Coincident", 10, 2, 11, 1),
    Sketcher.Constraint("Coincident", 11, 2, 8, 1),
    Sketcher.Constraint("Coincident", 12, 2, 13, 1),
    Sketcher.Constraint("Coincident", 13, 2, 14, 1),
    Sketcher.Constraint("Coincident", 14, 2, 15, 1),
    Sketcher.Constraint("Coincident", 15, 2, 12, 1),
    Sketcher.Constraint("Vertical", 0),
    Sketcher.Constraint("Horizontal", 1),
    Sketcher.Constraint("Vertical", 2),
    Sketcher.Constraint("Horizontal", 3),
    Sketcher.Constraint("Vertical", 4),
    Sketcher.Constraint("Horizontal", 5),
    Sketcher.Constraint("Vertical", 6),
    Sketcher.Constraint("Horizontal", 7),
    Sketcher.Constraint("Vertical", 8),
    Sketcher.Constraint("Horizontal", 9),
    Sketcher.Constraint("Vertical", 10),
    Sketcher.Constraint("Horizontal", 11),
    Sketcher.Constraint("Vertical", 12),
    Sketcher.Constraint("Horizontal", 13),
    Sketcher.Constraint("Vertical", 14),
    Sketcher.Constraint("Horizontal", 15),
    Sketcher.Constraint("Symmetric", 3, 2, 10, 2, -1, 1),
    Sketcher.Constraint("Symmetric", 1, 2, 8, 2, -2),
    Sketcher.Constraint("Symmetric", 5, 2, 12, 2, -2),
    Sketcher.Constraint("Symmetric", 7, 2, 14, 2, -2),
    Sketcher.Constraint("PointOnObject", 2, 2, -1),
    Sketcher.Constraint("Vertical", 3, 2, 4, 2),
    Sketcher.Constraint("Vertical", 2, 2, 5, 2),
    Sketcher.Constraint("Equal", 2, 4),
    Sketcher.Constraint("DistanceX", 1, 1, 1, 2, 24.0),
    Sketcher.Constraint("DistanceY", 0, 2, 0, 1, 16.0),
    Sketcher.Constraint("DistanceX", 0, 2, -1, 1, 67.0),
    Sketcher.Constraint("DistanceY", -1, 1, 4, 2, 210.0),
])
pad5 = body.newObject("PartDesign::Pad", "Pad004")
pad5.Profile = sketch14
pad5.Length = 5

sketch15 = body.newObject("Sketcher::SketchObject", "Sketch014")
sketch15.AttachmentSupport = (doc.getObject("XY_Plane"), [""])
sketch15.MapMode = "FlatFace"
sketch15.addGeometry([
    Part.Circle(V(-55, -8, 0), V(0, 0, 1), 2.15),
    Part.Circle(V(-55, 218, 0), V(0, 0, 1), 2.15),
    Part.Circle(V(55, -8, 0), V(0, 0, 1), 2.15),
    Part.Circle(V(55, 218, 0), V(0, 0, 1), 2.15),
], False)
sketch15.addConstraint([
    Sketcher.Constraint("Equal", 0, 1),
    Sketcher.Constraint("Equal", 1, 2),
    Sketcher.Constraint("Equal", 2, 3),
    Sketcher.Constraint("Symmetric", 0, 3, 2, 3, -2),
    Sketcher.Constraint("Symmetric", 1, 3, 3, 3, -2),
    Sketcher.Constraint("Vertical", 0, 3, 1, 3),
    Sketcher.Constraint("Diameter", 0, 4.3),
    Sketcher.Constraint("DistanceX", 0, 3, -1, 1, 55.0),
    Sketcher.Constraint("DistanceY", 0, 3, -1, 1, 8.0),
    Sketcher.Constraint("DistanceY", -1, 1, 1, 3, 218.0),
])
pocket10 = body.newObject("PartDesign::Pocket", "Pocket009")
pocket10.Profile = sketch15
pocket10.Type = "ThroughAll"
pocket10.Reversed = True

doc.recompute()
